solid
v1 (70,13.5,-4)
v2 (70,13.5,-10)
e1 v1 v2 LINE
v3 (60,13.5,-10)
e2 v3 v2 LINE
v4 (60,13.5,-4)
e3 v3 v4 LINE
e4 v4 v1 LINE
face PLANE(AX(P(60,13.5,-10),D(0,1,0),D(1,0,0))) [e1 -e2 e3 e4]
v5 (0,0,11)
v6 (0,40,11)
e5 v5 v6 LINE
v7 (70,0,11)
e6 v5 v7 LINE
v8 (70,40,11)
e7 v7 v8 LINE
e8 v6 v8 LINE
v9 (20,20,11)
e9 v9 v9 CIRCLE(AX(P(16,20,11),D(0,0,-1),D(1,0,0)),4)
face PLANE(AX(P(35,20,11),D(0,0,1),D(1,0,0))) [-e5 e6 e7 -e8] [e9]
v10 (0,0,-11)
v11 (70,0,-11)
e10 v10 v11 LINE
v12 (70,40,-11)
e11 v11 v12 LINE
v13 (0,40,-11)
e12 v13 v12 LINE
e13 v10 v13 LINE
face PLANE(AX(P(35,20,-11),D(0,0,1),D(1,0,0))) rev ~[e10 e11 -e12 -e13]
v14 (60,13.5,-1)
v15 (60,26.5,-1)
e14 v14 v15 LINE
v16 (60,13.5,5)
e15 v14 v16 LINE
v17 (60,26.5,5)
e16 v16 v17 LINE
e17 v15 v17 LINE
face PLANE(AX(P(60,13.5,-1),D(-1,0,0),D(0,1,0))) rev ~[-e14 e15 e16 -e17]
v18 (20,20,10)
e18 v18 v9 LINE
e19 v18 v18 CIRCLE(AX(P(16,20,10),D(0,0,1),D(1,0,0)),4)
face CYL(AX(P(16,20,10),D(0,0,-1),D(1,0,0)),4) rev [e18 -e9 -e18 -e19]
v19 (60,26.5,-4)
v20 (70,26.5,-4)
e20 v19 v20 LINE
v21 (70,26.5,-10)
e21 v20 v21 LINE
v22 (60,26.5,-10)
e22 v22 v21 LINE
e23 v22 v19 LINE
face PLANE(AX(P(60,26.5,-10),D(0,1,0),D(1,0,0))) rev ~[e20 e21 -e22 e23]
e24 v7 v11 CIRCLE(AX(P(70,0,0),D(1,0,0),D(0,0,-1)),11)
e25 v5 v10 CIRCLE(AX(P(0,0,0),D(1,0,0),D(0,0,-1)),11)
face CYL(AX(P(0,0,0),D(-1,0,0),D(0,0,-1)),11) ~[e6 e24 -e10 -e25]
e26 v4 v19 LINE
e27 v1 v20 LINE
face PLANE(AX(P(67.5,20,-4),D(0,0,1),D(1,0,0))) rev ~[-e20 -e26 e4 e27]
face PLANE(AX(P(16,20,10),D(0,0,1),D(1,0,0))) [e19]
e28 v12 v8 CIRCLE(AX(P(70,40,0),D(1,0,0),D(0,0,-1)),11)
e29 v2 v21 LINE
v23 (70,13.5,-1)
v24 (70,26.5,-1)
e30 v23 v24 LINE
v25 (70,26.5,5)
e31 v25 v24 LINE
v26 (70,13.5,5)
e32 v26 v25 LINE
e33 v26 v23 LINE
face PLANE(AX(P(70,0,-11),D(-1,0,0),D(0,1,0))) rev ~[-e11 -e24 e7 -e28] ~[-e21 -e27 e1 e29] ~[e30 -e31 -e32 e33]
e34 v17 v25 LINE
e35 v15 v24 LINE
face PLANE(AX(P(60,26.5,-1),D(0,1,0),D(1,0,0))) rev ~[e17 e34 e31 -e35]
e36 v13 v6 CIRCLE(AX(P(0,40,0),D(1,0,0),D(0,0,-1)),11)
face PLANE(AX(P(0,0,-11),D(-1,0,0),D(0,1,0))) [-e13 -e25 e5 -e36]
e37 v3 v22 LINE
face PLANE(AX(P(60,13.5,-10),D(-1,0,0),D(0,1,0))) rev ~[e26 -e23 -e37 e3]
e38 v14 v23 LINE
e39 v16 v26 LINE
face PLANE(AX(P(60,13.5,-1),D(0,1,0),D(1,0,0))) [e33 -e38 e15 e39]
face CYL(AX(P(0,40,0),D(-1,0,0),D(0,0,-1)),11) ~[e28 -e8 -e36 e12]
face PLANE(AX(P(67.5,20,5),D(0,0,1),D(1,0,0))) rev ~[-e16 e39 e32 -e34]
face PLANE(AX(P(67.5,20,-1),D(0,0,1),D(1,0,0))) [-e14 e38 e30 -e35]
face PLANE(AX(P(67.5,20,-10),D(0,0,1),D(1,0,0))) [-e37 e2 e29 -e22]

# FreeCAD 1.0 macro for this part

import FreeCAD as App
import Part
import Sketcher

V = App.Vector
Q = App.Units.Quantity


def add_polygon(sketch, points):
    """Adds a closed chain of lines whose ends are joined by coincident constraints."""
    first, n = sketch.GeometryCount, len(points)
    for a, b in zip(points, points[1:] + points[:1]):
        sketch.addGeometry(Part.LineSegment(App.Vector(*a, 0), App.Vector(*b, 0)), False)
    for i in range(n):
        sketch.addConstraint(Sketcher.Constraint("Coincident", first + i, 2, first + (i + 1) % n, 1))

doc = App.newDocument("Part")
body = doc.addObject("PartDesign::Body", "Body")

# Sketch on XY plane
sketch1 = body.newObject("Sketcher::SketchObject", "Sketch")
sketch1.AttachmentSupport = (doc.getObject("XY_Plane"), [""])
sketch1.MapMode = "FlatFace"
sketch1.AttachmentOffset = App.Placement(V(0, 0, 10), App.Rotation())
sketch1.addGeometry(Part.Circle(V(16, 20, 0), V(0, 0, 1), 4), False)
sketch1.addConstraint(Sketcher.Constraint("Diameter", 0, Q("8 mm")))
sketch1.addConstraint(Sketcher.Constraint("DistanceX", -1, 1, 0, 3, Q("16 mm")))
sketch1.addConstraint(Sketcher.Constraint("DistanceY", -1, 1, 0, 3, Q("20 mm")))
pad1 = body.newObject("PartDesign::Pad", "Pad")
pad1.Profile = sketch1
pad1.Length = 2
body2 = doc.addObject("PartDesign::Body", "Body001")

# Sketch on XY plane
sketch2 = body2.newObject("Sketcher::SketchObject", "Sketch001")
sketch2.AttachmentSupport = (doc.getObject("XY_Plane001"), [""])
sketch2.MapMode = "FlatFace"
sketch2.AttachmentOffset = App.Placement(V(0, 0, -1), App.Rotation())
add_polygon(sketch2, [(60, 26), (60, 14), (75, 14), (75, 26)])  # lines 0-3
sketch2.addConstraint(Sketcher.Constraint("Vertical", 0))
sketch2.addConstraint(Sketcher.Constraint("Horizontal", 1))
sketch2.addConstraint(Sketcher.Constraint("Vertical", 2))
sketch2.addConstraint(Sketcher.Constraint("Horizontal", 3))
sketch2.addConstraint(Sketcher.Constraint("DistanceX", 1, 1, 1, 2, Q("15 mm")))
sketch2.addConstraint(Sketcher.Constraint("DistanceY", 0, 2, 0, 1, Q("13 mm")))
sketch2.addConstraint(Sketcher.Constraint("DistanceX", -1, 1, 0, 2, Q("60 mm")))
sketch2.addConstraint(Sketcher.Constraint("DistanceY", -1, 1, 0, 2, Q("13.5 mm")))
pad2 = body2.newObject("PartDesign::Pad", "Pad001")
pad2.Profile = sketch2
pad2.Length = 6
body3 = doc.addObject("PartDesign::Body", "Body002")
body3.AllowCompound = True

# Sketch on XY plane
sketch3 = body3.newObject("Sketcher::SketchObject", "Sketch002")
sketch3.AttachmentSupport = (doc.getObject("XY_Plane002"), [""])
sketch3.MapMode = "FlatFace"
sketch3.AttachmentOffset = App.Placement(V(0, 0, -10), App.Rotation())
add_polygon(sketch3, [(60, 26), (60, 14), (75, 14), (75, 26)])  # lines 0-3
sketch3.addConstraint(Sketcher.Constraint("Vertical", 0))
sketch3.addConstraint(Sketcher.Constraint("Horizontal", 1))
sketch3.addConstraint(Sketcher.Constraint("Vertical", 2))
sketch3.addConstraint(Sketcher.Constraint("Horizontal", 3))
sketch3.addConstraint(Sketcher.Constraint("DistanceX", 1, 1, 1, 2, Q("15 mm")))
sketch3.addConstraint(Sketcher.Constraint("DistanceY", 0, 2, 0, 1, Q("13 mm")))
sketch3.addConstraint(Sketcher.Constraint("DistanceX", -1, 1, 0, 2, Q("60 mm")))
sketch3.addConstraint(Sketcher.Constraint("DistanceY", -1, 1, 0, 2, Q("13.5 mm")))
pad3 = body3.newObject("PartDesign::Pad", "Pad002")
pad3.Profile = sketch3
pad3.Length = 6
doc.recompute()

boolean = body3.newObject("PartDesign::Boolean", "Boolean")
boolean.Type = "Fuse"
boolean.addObjects([body])
doc.recompute()

boolean2 = body3.newObject("PartDesign::Boolean", "Boolean001")
boolean2.Type = "Fuse"
boolean2.addObjects([body2])
body4 = doc.addObject("PartDesign::Body", "Body003")

# Sketch on XY plane
sketch4 = body4.newObject("Sketcher::SketchObject", "Sketch003")
sketch4.AttachmentSupport = (doc.getObject("XY_Plane003"), [""])
sketch4.MapMode = "FlatFace"
sketch4.AttachmentOffset = App.Placement(V(0, 0, -11), App.Rotation())
add_polygon(sketch4, [(0, 40), (0, 0), (70, 0), (70, 40)])  # lines 0-3
sketch4.addConstraint(Sketcher.Constraint("Vertical", 0))
sketch4.addConstraint(Sketcher.Constraint("Horizontal", 1))
sketch4.addConstraint(Sketcher.Constraint("Vertical", 2))
sketch4.addConstraint(Sketcher.Constraint("Horizontal", 3))
sketch4.addConstraint(Sketcher.Constraint("Coincident", 0, 2, -1, 1))
sketch4.addConstraint(Sketcher.Constraint("DistanceX", 1, 1, 1, 2, Q("70 mm")))
sketch4.addConstraint(Sketcher.Constraint("DistanceY", 0, 2, 0, 1, Q("40 mm")))
pad4 = body4.newObject("PartDesign::Pad", "Pad003")
pad4.Profile = sketch4
pad4.Length = 22
body5 = doc.addObject("PartDesign::Body", "Body004")

# Sketch on XY plane
sketch5 = body5.newObject("Sketcher::SketchObject", "Sketch004")
sketch5.AttachmentSupport = (doc.getObject("XY_Plane004"), [""])
sketch5.MapMode = "FlatFace"
sketch5.addGeometry(Part.Circle(V(0, 0, 0), V(0, 0, 1), 11), False)
sketch5.addConstraint(Sketcher.Constraint("Coincident", 0, 3, -1, 1))
sketch5.addConstraint(Sketcher.Constraint("Diameter", 0, Q("22 mm")))
pad5 = body5.newObject("PartDesign::Pad", "Pad004")
pad5.Profile = sketch5
pad5.Length = 70
body6 = doc.addObject("PartDesign::Body", "Body005")
doc.recompute()

body5.Placement = App.Placement(V(0, 0, 0), App.Rotation(V(0, 1, 0), 90))
boolean3 = body6.newObject("PartDesign::Boolean", "Boolean002")
boolean3.Type = "Fuse"
boolean3.addObjects([body5])
body7 = doc.addObject("PartDesign::Body", "Body006")

# Sketch on XY plane
sketch6 = body7.newObject("Sketcher::SketchObject", "Sketch005")
sketch6.AttachmentSupport = (doc.getObject("XY_Plane006"), [""])
sketch6.MapMode = "FlatFace"
sketch6.addGeometry(Part.Circle(V(0, 0, 0), V(0, 0, 1), 11), False)
sketch6.addConstraint(Sketcher.Constraint("Coincident", 0, 3, -1, 1))
sketch6.addConstraint(Sketcher.Constraint("Diameter", 0, Q("22 mm")))
pad6 = body7.newObject("PartDesign::Pad", "Pad005")
pad6.Profile = sketch6
pad6.Length = 70
body8 = doc.addObject("PartDesign::Body", "Body007")
doc.recompute()

body7.Placement = App.Placement(V(0, 0, 0), App.Rotation(V(0, 1, 0), 90))
boolean4 = body8.newObject("PartDesign::Boolean", "Boolean003")
boolean4.Type = "Fuse"
boolean4.addObjects([body7])
body9 = doc.addObject("PartDesign::Body", "Body008")
doc.recompute()

body8.Placement = App.Placement(V(0, 40, 0), App.Rotation(V(0, 0, 1), 0))
boolean5 = body9.newObject("PartDesign::Boolean", "Boolean004")
boolean5.Type = "Fuse"
boolean5.addObjects([body8])
doc.recompute()

boolean6 = body9.newObject("PartDesign::Boolean", "Boolean005")
boolean6.Type = "Fuse"
boolean6.addObjects([body4])
doc.recompute()

boolean7 = body9.newObject("PartDesign::Boolean", "Boolean006")
boolean7.Type = "Fuse"
boolean7.addObjects([body6])
doc.recompute()

boolean8 = body9.newObject("PartDesign::Boolean", "Boolean007")
boolean8.Type = "Cut"
boolean8.addObjects([body3])

doc.recompute()
